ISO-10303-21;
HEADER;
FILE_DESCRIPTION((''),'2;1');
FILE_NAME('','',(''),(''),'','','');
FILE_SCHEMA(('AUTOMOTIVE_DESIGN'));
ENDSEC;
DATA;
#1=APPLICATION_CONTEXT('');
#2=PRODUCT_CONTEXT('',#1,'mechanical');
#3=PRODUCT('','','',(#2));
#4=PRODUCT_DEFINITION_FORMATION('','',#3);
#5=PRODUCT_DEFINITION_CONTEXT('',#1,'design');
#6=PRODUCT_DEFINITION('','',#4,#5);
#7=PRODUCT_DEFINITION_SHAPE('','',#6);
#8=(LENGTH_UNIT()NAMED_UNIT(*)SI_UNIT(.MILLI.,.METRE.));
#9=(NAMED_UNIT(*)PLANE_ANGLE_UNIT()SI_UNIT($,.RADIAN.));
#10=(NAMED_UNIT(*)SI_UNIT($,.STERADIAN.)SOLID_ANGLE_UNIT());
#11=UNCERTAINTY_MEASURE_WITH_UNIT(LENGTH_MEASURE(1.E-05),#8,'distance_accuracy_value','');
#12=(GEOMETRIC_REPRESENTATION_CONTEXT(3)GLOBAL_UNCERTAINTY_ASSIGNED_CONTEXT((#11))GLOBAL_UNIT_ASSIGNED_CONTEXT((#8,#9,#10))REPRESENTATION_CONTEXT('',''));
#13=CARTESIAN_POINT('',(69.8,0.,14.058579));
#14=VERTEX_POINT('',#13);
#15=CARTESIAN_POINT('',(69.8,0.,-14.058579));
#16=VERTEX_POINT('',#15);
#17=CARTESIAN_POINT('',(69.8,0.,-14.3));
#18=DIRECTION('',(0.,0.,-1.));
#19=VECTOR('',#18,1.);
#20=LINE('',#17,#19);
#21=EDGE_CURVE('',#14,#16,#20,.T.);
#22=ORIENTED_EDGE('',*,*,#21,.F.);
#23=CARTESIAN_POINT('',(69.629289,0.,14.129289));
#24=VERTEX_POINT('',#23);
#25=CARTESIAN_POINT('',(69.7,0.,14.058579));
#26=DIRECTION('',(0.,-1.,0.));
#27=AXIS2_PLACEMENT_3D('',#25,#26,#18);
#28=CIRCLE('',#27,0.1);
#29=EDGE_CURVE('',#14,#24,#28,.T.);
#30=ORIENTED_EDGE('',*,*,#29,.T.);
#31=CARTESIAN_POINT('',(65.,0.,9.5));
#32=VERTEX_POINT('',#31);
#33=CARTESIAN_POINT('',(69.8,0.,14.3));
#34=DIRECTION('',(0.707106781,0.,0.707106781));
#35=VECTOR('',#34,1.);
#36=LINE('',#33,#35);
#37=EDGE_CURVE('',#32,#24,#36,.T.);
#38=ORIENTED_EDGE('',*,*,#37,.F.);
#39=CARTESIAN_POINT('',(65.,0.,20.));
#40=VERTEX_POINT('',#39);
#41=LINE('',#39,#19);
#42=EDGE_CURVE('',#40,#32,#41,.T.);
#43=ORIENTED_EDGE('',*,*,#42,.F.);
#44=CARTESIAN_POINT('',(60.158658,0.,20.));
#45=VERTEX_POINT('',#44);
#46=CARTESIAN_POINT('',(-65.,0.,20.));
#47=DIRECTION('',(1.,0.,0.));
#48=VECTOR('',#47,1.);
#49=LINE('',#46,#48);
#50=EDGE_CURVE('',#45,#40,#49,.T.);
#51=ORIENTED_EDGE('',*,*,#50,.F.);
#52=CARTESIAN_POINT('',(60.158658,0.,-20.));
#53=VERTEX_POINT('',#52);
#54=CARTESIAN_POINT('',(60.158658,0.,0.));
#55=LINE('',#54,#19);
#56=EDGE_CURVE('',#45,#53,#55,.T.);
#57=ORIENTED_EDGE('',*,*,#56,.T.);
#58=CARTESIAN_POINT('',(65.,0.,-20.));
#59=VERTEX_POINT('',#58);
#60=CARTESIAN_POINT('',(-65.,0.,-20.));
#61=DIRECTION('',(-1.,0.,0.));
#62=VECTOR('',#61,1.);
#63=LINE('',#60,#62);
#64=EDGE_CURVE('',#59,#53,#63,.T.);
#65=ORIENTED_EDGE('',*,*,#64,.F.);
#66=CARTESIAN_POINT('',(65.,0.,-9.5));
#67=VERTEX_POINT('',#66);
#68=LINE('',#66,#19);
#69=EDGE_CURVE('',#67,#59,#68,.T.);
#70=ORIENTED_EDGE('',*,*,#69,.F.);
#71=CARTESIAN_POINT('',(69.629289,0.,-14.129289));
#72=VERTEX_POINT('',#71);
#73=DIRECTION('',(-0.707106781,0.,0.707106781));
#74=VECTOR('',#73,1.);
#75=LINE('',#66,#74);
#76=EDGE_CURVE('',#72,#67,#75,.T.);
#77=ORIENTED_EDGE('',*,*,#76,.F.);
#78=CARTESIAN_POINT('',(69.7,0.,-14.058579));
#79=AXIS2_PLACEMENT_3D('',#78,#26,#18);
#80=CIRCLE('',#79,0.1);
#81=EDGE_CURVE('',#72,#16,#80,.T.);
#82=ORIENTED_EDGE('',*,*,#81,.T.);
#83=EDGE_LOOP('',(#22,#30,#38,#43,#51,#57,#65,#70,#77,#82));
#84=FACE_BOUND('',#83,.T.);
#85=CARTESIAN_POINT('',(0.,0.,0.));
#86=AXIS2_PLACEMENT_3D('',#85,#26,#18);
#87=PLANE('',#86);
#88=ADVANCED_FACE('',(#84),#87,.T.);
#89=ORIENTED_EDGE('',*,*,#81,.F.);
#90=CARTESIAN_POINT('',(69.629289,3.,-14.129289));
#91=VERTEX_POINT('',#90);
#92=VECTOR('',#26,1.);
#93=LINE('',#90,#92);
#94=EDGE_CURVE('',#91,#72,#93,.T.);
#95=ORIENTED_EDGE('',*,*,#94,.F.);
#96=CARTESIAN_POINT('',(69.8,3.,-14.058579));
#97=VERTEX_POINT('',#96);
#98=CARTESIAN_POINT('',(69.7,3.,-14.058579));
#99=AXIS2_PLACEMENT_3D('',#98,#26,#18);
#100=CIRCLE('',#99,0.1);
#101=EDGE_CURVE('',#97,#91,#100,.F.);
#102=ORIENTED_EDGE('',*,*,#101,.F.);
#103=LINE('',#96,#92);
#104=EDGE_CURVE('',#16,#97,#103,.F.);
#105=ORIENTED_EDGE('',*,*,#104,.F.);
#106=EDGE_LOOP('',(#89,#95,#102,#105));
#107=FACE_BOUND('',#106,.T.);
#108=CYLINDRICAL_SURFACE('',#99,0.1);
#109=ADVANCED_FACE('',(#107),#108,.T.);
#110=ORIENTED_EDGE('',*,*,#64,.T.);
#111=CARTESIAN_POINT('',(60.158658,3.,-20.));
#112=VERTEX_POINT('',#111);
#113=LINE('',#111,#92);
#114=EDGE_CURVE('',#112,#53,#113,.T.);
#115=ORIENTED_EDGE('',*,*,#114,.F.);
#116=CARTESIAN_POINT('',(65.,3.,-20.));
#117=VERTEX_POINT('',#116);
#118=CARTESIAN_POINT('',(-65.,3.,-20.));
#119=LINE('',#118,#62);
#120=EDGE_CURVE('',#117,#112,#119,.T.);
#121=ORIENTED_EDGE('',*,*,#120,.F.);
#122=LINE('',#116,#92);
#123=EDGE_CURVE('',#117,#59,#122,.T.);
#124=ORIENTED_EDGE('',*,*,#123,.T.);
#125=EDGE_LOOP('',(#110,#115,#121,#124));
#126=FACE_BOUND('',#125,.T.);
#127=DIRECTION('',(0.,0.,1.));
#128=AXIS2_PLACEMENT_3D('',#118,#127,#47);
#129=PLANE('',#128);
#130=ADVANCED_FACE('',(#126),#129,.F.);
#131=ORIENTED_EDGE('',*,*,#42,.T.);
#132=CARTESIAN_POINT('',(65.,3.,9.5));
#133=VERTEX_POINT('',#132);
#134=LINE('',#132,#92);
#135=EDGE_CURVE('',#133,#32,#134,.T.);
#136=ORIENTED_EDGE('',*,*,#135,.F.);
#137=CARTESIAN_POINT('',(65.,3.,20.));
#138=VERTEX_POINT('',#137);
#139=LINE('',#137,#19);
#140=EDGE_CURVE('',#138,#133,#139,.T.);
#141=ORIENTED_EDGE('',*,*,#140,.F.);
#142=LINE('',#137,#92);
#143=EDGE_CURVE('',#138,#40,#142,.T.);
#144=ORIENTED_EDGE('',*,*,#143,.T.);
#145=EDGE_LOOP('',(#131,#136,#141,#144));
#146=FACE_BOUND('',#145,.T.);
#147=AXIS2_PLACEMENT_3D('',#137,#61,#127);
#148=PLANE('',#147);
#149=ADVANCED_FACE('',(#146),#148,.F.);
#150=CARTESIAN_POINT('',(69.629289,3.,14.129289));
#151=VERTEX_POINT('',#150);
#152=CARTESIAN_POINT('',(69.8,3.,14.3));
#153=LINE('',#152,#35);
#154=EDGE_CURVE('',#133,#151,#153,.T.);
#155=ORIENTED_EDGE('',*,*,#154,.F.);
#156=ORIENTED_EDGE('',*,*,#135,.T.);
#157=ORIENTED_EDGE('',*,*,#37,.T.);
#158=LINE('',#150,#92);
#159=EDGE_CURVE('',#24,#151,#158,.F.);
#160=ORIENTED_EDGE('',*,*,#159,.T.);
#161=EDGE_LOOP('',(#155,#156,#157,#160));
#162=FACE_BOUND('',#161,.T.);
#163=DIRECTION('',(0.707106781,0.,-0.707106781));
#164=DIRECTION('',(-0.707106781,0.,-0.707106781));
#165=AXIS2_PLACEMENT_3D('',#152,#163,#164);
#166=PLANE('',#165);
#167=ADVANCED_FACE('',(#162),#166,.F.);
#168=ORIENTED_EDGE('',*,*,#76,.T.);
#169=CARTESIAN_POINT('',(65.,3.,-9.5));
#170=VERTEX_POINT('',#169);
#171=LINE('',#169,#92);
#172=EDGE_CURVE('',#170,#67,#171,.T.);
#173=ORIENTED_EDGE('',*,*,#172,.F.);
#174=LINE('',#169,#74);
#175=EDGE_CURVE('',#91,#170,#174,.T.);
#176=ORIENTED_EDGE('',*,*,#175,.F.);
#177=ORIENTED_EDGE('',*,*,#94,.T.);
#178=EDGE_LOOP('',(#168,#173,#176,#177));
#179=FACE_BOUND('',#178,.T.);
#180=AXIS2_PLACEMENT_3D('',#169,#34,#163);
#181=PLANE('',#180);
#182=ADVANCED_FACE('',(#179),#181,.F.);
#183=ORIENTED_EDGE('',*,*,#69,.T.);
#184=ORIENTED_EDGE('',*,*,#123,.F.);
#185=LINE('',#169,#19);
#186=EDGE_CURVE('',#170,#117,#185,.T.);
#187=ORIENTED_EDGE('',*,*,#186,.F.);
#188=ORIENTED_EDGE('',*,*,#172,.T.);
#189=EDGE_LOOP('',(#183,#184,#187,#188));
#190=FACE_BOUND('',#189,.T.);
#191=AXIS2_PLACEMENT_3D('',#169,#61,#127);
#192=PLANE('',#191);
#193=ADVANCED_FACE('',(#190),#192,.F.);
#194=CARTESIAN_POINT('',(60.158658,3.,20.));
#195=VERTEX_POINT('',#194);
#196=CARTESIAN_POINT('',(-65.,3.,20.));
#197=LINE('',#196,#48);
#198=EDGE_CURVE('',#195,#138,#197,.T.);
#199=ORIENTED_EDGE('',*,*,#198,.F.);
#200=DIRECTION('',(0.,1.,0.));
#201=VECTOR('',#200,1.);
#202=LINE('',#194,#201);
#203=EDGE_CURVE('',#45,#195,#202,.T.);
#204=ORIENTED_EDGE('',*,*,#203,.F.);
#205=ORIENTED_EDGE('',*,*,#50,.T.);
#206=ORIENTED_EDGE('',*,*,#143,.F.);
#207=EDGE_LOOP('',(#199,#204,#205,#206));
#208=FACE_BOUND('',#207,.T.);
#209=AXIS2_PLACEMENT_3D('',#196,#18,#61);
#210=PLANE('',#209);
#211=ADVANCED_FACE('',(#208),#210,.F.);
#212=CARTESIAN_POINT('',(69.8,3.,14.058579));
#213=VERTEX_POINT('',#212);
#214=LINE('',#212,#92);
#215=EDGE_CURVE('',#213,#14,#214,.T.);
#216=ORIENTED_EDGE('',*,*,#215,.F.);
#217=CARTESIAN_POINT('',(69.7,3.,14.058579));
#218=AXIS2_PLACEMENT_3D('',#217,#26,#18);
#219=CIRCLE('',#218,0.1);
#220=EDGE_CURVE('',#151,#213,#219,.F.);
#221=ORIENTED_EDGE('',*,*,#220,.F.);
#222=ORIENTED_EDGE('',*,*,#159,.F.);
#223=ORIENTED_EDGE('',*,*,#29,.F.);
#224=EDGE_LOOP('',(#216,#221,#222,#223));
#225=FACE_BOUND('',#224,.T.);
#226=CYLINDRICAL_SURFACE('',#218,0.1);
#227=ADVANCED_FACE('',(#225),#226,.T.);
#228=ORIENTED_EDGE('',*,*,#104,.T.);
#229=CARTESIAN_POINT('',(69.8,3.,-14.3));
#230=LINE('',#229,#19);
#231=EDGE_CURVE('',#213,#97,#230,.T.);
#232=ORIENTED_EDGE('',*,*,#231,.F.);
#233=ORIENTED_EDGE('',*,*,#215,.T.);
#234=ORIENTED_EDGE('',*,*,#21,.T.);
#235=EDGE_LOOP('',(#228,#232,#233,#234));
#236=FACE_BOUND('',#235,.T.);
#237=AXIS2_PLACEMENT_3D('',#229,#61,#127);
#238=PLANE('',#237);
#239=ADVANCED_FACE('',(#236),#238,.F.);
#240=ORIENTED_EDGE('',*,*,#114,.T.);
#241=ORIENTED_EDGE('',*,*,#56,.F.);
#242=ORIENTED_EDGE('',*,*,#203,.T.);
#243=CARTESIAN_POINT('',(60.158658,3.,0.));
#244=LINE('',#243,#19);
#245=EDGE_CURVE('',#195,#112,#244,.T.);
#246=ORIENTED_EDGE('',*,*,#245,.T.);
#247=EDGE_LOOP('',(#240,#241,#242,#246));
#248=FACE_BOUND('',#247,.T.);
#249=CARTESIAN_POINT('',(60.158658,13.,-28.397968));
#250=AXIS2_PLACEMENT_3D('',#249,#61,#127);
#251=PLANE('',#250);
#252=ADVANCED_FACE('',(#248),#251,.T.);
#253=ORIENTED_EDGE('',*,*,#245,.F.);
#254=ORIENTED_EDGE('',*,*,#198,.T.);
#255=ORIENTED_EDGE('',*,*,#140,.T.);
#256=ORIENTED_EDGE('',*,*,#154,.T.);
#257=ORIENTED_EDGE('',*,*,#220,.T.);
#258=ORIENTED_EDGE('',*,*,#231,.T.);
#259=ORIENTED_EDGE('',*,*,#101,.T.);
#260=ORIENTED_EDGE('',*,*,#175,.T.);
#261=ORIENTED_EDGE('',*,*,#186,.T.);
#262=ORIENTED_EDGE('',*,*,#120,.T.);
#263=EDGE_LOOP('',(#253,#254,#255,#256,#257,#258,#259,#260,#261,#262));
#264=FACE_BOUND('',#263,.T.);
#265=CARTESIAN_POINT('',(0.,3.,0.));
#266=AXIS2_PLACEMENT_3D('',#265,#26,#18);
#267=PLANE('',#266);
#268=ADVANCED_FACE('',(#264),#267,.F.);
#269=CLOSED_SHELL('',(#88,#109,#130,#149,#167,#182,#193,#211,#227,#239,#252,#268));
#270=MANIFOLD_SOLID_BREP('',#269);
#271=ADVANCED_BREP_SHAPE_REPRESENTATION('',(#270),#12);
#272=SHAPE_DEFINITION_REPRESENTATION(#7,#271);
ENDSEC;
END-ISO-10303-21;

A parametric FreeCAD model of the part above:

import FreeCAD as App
import Part
import Sketcher


def edges_at(feature, points):
    """Names of the edges that pass closest to the given points."""
    edges = feature.Shape.Edges
    near = lambda p: min(range(len(edges)), key=lambda i: edges[i].distToShape(Part.Vertex(*p))[0])
    return sorted({f"Edge{near(p) + 1}" for p in points})

doc = App.newDocument("Part")
body = doc.addObject("PartDesign::Body", "Body")

# Sketch on XZ plane
sketch1 = body.newObject("Sketcher::SketchObject", "Sketch")
sketch1.AttachmentSupport = (doc.getObject("XZ_Plane"), [""])
sketch1.MapMode = "FlatFace"
sketch1.addGeometry([
    Part.LineSegment(App.Vector(69.8, -14.3, 0), App.Vector(65, -9.5, 0)),  # 0
    Part.LineSegment(App.Vector(65, -9.5, 0), App.Vector(65, -20, 0)),  # 1
    Part.LineSegment(App.Vector(65, -20, 0), App.Vector(-65, -20, 0)),  # 2
    Part.LineSegment(App.Vector(-65, -20, 0), App.Vector(-65, 20, 0)),  # 3
    Part.LineSegment(App.Vector(-65, 20, 0), App.Vector(65, 20, 0)),  # 4
    Part.LineSegment(App.Vector(65, 20, 0), App.Vector(65, 9.5, 0)),  # 5
    Part.LineSegment(App.Vector(65, 9.5, 0), App.Vector(69.8, 14.3, 0)),  # 6
    Part.LineSegment(App.Vector(69.8, 14.3, 0), App.Vector(69.8, -14.3, 0)),  # 7
    Part.LineSegment(App.Vector(10, 12.5, 0), App.Vector(10, 9.5, 0)),  # 8
    Part.LineSegment(App.Vector(10, 9.5, 0), App.Vector(40, 9.5, 0)),  # 9
    Part.LineSegment(App.Vector(40, 9.5, 0), App.Vector(40, 12.5, 0)),  # 10
    Part.LineSegment(App.Vector(40, 12.5, 0), App.Vector(10, 12.5, 0)),  # 11
    Part.Circle(App.Vector(50, 0, 0), App.Vector(0, 0, 1), 2),  # 12
    Part.LineSegment(App.Vector(10, -9.5, 0), App.Vector(10, -12.5, 0)),  # 13
    Part.LineSegment(App.Vector(10, -12.5, 0), App.Vector(40, -12.5, 0)),  # 14
    Part.LineSegment(App.Vector(40, -12.5, 0), App.Vector(40, -9.5, 0)),  # 15
    Part.LineSegment(App.Vector(40, -9.5, 0), App.Vector(10, -9.5, 0)),  # 16
    Part.Circle(App.Vector(-13.6, 0, 0), App.Vector(0, 0, 1), 2),  # 17
    Part.Circle(App.Vector(-28.6, 0, 0), App.Vector(0, 0, 1), 2),  # 18
    Part.Circle(App.Vector(-50.1, 0, 0), App.Vector(0, 0, 1), 11),  # 19
], False)
sketch1.addConstraint([
    Sketcher.Constraint("Coincident", 0, 2, 1, 1),
    Sketcher.Constraint("Coincident", 1, 2, 2, 1),
    Sketcher.Constraint("Coincident", 2, 2, 3, 1),
    Sketcher.Constraint("Coincident", 3, 2, 4, 1),
    Sketcher.Constraint("Coincident", 4, 2, 5, 1),
    Sketcher.Constraint("Coincident", 5, 2, 6, 1),
    Sketcher.Constraint("Coincident", 6, 2, 7, 1),
    Sketcher.Constraint("Coincident", 7, 2, 0, 1),
    Sketcher.Constraint("Coincident", 8, 2, 9, 1),
    Sketcher.Constraint("Coincident", 9, 2, 10, 1),
    Sketcher.Constraint("Coincident", 10, 2, 11, 1),
    Sketcher.Constraint("Coincident", 11, 2, 8, 1),
    Sketcher.Constraint("Coincident", 13, 2, 14, 1),
    Sketcher.Constraint("Coincident", 14, 2, 15, 1),
    Sketcher.Constraint("Coincident", 15, 2, 16, 1),
    Sketcher.Constraint("Coincident", 16, 2, 13, 1),
    Sketcher.Constraint("Vertical", 1),
    Sketcher.Constraint("Horizontal", 2),
    Sketcher.Constraint("Vertical", 3),
    Sketcher.Constraint("Horizontal", 4),
    Sketcher.Constraint("Vertical", 5),
    Sketcher.Constraint("Vertical", 7),
    Sketcher.Constraint("Vertical", 8),
    Sketcher.Constraint("Horizontal", 9),
    Sketcher.Constraint("Vertical", 10),
    Sketcher.Constraint("Horizontal", 11),
    Sketcher.Constraint("Vertical", 13),
    Sketcher.Constraint("Horizontal", 14),
    Sketcher.Constraint("Vertical", 15),
    Sketcher.Constraint("Horizontal", 16),
    Sketcher.Constraint("Equal", 12, 17),
    Sketcher.Constraint("Equal", 17, 18),
    Sketcher.Constraint("Symmetric", 1, 2, 3, 2, -1, 1),
    Sketcher.Constraint("Symmetric", 0, 2, 5, 2, -1),
    Sketcher.Constraint("Symmetric", 11, 2, 13, 2, -1),
    Sketcher.Constraint("Symmetric", 9, 2, 15, 2, -1),
    Sketcher.Constraint("PointOnObject", 12, 3, -1),
    Sketcher.Constraint("PointOnObject", 17, 3, -1),
    Sketcher.Constraint("PointOnObject", 18, 3, -1),
    Sketcher.Constraint("PointOnObject", 19, 3, -1),
    Sketcher.Constraint("Perpendicular", 0, 6),
    Sketcher.Constraint("Horizontal", 5, 2, 8, 2),
    Sketcher.Constraint("Equal", 0, 6),
    Sketcher.Constraint("Diameter", 12, 4.0),
    Sketcher.Constraint("Diameter", 19, 22.0),
    Sketcher.Constraint("DistanceX", 2, 2, 2, 1, 130.0),
    Sketcher.Constraint("DistanceX", 9, 1, 9, 2, 30.0),
    Sketcher.Constraint("DistanceY", 3, 1, 3, 2, 40.0),
    Sketcher.Constraint("DistanceY", 8, 2, 8, 1, 3.0),
    Sketcher.Constraint("DistanceY", 1, 2, 1, 1, 10.5),
    Sketcher.Constraint("DistanceY", 7, 2, 7, 1, 28.6),
    Sketcher.Constraint("DistanceX", -1, 1, 12, 3, 50.0),
    Sketcher.Constraint("DistanceX", -1, 1, 8, 2, 10.0),
    Sketcher.Constraint("DistanceX", 18, 3, 17, 3, 15.0),
    Sketcher.Constraint("DistanceX", 17, 3, -1, 1, 13.595128),
    Sketcher.Constraint("DistanceX", 19, 3, -1, 1, 50.129943),
])
pad1 = body.newObject("PartDesign::Pad", "Pad")
pad1.Profile = sketch1
pad1.Length = 3
pad1.Reversed = True

# Sketch on XZ plane
sketch2 = body.newObject("Sketcher::SketchObject", "Sketch001")
sketch2.AttachmentSupport = (doc.getObject("XZ_Plane"), [""])
sketch2.MapMode = "FlatFace"
sketch2.AttachmentOffset = App.Placement(App.Vector(0, 0, -3), App.Rotation())
sketch2.addGeometry([
    Part.Circle(App.Vector(-50, 0, 0), App.Vector(0, 0, 1), 13),
    Part.Circle(App.Vector(-50, 0, 0), App.Vector(0, 0, 1), 11),
], False)
sketch2.addConstraint([
    Sketcher.Constraint("Coincident", 1, 3, 0, 3),
    Sketcher.Constraint("PointOnObject", 0, 3, -1),
    Sketcher.Constraint("Diameter", 0, 26.0),
    Sketcher.Constraint("Diameter", 1, 22.0),
    Sketcher.Constraint("DistanceX", 0, 3, -1, 1, 50.129943),
])
pad2 = body.newObject("PartDesign::Pad", "Pad001")
pad2.Profile = sketch2
pad2.Length = 4
pad2.Reversed = True

# Sketch on XZ plane
sketch3 = body.newObject("Sketcher::SketchObject", "Sketch002")
sketch3.AttachmentSupport = (doc.getObject("XZ_Plane"), [""])
sketch3.MapMode = "FlatFace"
sketch3.AttachmentOffset = App.Placement(App.Vector(0, 0, -7), App.Rotation())
sketch3.addGeometry([
    Part.Circle(App.Vector(-50, 0, 0), App.Vector(0, 0, 1), 13),
    Part.Circle(App.Vector(-50, 0, 0), App.Vector(0, 0, 1), 9),
], False)
sketch3.addConstraint([
    Sketcher.Constraint("Coincident", 1, 3, 0, 3),
    Sketcher.Constraint("PointOnObject", 0, 3, -1),
    Sketcher.Constraint("Diameter", 0, 26.0),
    Sketcher.Constraint("Diameter", 1, 18.0),
    Sketcher.Constraint("DistanceX", 0, 3, -1, 1, 50.129943),
])
pad3 = body.newObject("PartDesign::Pad", "Pad002")
pad3.Profile = sketch3
pad3.Length = 2
pad3.Reversed = True
doc.recompute()

chamfer = body.newObject("PartDesign::Chamfer", "Chamfer")
chamfer.Base = (pad3, edges_at(pad3, [(-50.13, 9, 13)]))
chamfer.Size = 2
doc.recompute()

chamfer2 = body.newObject("PartDesign::Chamfer", "Chamfer001")
chamfer2.Base = (chamfer, edges_at(chamfer, [(-65, 1.5, 20), (-65, 1.5, -20)]))
chamfer2.Size = 10

# Sketch on XZ plane
sketch4 = body.newObject("Sketcher::SketchObject", "Sketch003")
sketch4.AttachmentSupport = (doc.getObject("XZ_Plane"), [""])
sketch4.MapMode = "FlatFace"
sketch4.AttachmentOffset = App.Placement(App.Vector(0, 0, -3), App.Rotation())
sketch4.addGeometry([
    Part.LineSegment(App.Vector(-69, -28, 0), App.Vector(-69, 30, 0)),
    Part.LineSegment(App.Vector(-69, 30, 0), App.Vector(60, 30, 0)),
    Part.LineSegment(App.Vector(60, 30, 0), App.Vector(60, -28, 0)),
    Part.LineSegment(App.Vector(60, -28, 0), App.Vector(-69, -28, 0)),
], False)
sketch4.addConstraint([
    Sketcher.Constraint("Coincident", 0, 2, 1, 1),
    Sketcher.Constraint("Coincident", 1, 2, 2, 1),
    Sketcher.Constraint("Coincident", 2, 2, 3, 1),
    Sketcher.Constraint("Coincident", 3, 2, 0, 1),
    Sketcher.Constraint("Vertical", 0),
    Sketcher.Constraint("Horizontal", 1),
    Sketcher.Constraint("Vertical", 2),
    Sketcher.Constraint("Horizontal", 3),
    Sketcher.Constraint("DistanceX", 1, 1, 1, 2, 128.833312),
    Sketcher.Constraint("DistanceY", 0, 1, 0, 2, 58.233807),
    Sketcher.Constraint("DistanceY", -1, 1, 0, 2, 29.835839),
    Sketcher.Constraint("DistanceX", -1, 1, 1, 2, 60.158658),
])
pocket1 = body.newObject("PartDesign::Pocket", "Pocket")
pocket1.Profile = sketch4
pocket1.Type = "ThroughAll"
pocket1.Midplane = True
doc.recompute()

fillet = body.newObject("PartDesign::Fillet", "Fillet")
fillet.Base = (pocket1, edges_at(pocket1, [(69.8, 1.5, -14.3), (69.8, 1.5, 14.3)]))
fillet.Radius = 0.1

doc.recompute()
